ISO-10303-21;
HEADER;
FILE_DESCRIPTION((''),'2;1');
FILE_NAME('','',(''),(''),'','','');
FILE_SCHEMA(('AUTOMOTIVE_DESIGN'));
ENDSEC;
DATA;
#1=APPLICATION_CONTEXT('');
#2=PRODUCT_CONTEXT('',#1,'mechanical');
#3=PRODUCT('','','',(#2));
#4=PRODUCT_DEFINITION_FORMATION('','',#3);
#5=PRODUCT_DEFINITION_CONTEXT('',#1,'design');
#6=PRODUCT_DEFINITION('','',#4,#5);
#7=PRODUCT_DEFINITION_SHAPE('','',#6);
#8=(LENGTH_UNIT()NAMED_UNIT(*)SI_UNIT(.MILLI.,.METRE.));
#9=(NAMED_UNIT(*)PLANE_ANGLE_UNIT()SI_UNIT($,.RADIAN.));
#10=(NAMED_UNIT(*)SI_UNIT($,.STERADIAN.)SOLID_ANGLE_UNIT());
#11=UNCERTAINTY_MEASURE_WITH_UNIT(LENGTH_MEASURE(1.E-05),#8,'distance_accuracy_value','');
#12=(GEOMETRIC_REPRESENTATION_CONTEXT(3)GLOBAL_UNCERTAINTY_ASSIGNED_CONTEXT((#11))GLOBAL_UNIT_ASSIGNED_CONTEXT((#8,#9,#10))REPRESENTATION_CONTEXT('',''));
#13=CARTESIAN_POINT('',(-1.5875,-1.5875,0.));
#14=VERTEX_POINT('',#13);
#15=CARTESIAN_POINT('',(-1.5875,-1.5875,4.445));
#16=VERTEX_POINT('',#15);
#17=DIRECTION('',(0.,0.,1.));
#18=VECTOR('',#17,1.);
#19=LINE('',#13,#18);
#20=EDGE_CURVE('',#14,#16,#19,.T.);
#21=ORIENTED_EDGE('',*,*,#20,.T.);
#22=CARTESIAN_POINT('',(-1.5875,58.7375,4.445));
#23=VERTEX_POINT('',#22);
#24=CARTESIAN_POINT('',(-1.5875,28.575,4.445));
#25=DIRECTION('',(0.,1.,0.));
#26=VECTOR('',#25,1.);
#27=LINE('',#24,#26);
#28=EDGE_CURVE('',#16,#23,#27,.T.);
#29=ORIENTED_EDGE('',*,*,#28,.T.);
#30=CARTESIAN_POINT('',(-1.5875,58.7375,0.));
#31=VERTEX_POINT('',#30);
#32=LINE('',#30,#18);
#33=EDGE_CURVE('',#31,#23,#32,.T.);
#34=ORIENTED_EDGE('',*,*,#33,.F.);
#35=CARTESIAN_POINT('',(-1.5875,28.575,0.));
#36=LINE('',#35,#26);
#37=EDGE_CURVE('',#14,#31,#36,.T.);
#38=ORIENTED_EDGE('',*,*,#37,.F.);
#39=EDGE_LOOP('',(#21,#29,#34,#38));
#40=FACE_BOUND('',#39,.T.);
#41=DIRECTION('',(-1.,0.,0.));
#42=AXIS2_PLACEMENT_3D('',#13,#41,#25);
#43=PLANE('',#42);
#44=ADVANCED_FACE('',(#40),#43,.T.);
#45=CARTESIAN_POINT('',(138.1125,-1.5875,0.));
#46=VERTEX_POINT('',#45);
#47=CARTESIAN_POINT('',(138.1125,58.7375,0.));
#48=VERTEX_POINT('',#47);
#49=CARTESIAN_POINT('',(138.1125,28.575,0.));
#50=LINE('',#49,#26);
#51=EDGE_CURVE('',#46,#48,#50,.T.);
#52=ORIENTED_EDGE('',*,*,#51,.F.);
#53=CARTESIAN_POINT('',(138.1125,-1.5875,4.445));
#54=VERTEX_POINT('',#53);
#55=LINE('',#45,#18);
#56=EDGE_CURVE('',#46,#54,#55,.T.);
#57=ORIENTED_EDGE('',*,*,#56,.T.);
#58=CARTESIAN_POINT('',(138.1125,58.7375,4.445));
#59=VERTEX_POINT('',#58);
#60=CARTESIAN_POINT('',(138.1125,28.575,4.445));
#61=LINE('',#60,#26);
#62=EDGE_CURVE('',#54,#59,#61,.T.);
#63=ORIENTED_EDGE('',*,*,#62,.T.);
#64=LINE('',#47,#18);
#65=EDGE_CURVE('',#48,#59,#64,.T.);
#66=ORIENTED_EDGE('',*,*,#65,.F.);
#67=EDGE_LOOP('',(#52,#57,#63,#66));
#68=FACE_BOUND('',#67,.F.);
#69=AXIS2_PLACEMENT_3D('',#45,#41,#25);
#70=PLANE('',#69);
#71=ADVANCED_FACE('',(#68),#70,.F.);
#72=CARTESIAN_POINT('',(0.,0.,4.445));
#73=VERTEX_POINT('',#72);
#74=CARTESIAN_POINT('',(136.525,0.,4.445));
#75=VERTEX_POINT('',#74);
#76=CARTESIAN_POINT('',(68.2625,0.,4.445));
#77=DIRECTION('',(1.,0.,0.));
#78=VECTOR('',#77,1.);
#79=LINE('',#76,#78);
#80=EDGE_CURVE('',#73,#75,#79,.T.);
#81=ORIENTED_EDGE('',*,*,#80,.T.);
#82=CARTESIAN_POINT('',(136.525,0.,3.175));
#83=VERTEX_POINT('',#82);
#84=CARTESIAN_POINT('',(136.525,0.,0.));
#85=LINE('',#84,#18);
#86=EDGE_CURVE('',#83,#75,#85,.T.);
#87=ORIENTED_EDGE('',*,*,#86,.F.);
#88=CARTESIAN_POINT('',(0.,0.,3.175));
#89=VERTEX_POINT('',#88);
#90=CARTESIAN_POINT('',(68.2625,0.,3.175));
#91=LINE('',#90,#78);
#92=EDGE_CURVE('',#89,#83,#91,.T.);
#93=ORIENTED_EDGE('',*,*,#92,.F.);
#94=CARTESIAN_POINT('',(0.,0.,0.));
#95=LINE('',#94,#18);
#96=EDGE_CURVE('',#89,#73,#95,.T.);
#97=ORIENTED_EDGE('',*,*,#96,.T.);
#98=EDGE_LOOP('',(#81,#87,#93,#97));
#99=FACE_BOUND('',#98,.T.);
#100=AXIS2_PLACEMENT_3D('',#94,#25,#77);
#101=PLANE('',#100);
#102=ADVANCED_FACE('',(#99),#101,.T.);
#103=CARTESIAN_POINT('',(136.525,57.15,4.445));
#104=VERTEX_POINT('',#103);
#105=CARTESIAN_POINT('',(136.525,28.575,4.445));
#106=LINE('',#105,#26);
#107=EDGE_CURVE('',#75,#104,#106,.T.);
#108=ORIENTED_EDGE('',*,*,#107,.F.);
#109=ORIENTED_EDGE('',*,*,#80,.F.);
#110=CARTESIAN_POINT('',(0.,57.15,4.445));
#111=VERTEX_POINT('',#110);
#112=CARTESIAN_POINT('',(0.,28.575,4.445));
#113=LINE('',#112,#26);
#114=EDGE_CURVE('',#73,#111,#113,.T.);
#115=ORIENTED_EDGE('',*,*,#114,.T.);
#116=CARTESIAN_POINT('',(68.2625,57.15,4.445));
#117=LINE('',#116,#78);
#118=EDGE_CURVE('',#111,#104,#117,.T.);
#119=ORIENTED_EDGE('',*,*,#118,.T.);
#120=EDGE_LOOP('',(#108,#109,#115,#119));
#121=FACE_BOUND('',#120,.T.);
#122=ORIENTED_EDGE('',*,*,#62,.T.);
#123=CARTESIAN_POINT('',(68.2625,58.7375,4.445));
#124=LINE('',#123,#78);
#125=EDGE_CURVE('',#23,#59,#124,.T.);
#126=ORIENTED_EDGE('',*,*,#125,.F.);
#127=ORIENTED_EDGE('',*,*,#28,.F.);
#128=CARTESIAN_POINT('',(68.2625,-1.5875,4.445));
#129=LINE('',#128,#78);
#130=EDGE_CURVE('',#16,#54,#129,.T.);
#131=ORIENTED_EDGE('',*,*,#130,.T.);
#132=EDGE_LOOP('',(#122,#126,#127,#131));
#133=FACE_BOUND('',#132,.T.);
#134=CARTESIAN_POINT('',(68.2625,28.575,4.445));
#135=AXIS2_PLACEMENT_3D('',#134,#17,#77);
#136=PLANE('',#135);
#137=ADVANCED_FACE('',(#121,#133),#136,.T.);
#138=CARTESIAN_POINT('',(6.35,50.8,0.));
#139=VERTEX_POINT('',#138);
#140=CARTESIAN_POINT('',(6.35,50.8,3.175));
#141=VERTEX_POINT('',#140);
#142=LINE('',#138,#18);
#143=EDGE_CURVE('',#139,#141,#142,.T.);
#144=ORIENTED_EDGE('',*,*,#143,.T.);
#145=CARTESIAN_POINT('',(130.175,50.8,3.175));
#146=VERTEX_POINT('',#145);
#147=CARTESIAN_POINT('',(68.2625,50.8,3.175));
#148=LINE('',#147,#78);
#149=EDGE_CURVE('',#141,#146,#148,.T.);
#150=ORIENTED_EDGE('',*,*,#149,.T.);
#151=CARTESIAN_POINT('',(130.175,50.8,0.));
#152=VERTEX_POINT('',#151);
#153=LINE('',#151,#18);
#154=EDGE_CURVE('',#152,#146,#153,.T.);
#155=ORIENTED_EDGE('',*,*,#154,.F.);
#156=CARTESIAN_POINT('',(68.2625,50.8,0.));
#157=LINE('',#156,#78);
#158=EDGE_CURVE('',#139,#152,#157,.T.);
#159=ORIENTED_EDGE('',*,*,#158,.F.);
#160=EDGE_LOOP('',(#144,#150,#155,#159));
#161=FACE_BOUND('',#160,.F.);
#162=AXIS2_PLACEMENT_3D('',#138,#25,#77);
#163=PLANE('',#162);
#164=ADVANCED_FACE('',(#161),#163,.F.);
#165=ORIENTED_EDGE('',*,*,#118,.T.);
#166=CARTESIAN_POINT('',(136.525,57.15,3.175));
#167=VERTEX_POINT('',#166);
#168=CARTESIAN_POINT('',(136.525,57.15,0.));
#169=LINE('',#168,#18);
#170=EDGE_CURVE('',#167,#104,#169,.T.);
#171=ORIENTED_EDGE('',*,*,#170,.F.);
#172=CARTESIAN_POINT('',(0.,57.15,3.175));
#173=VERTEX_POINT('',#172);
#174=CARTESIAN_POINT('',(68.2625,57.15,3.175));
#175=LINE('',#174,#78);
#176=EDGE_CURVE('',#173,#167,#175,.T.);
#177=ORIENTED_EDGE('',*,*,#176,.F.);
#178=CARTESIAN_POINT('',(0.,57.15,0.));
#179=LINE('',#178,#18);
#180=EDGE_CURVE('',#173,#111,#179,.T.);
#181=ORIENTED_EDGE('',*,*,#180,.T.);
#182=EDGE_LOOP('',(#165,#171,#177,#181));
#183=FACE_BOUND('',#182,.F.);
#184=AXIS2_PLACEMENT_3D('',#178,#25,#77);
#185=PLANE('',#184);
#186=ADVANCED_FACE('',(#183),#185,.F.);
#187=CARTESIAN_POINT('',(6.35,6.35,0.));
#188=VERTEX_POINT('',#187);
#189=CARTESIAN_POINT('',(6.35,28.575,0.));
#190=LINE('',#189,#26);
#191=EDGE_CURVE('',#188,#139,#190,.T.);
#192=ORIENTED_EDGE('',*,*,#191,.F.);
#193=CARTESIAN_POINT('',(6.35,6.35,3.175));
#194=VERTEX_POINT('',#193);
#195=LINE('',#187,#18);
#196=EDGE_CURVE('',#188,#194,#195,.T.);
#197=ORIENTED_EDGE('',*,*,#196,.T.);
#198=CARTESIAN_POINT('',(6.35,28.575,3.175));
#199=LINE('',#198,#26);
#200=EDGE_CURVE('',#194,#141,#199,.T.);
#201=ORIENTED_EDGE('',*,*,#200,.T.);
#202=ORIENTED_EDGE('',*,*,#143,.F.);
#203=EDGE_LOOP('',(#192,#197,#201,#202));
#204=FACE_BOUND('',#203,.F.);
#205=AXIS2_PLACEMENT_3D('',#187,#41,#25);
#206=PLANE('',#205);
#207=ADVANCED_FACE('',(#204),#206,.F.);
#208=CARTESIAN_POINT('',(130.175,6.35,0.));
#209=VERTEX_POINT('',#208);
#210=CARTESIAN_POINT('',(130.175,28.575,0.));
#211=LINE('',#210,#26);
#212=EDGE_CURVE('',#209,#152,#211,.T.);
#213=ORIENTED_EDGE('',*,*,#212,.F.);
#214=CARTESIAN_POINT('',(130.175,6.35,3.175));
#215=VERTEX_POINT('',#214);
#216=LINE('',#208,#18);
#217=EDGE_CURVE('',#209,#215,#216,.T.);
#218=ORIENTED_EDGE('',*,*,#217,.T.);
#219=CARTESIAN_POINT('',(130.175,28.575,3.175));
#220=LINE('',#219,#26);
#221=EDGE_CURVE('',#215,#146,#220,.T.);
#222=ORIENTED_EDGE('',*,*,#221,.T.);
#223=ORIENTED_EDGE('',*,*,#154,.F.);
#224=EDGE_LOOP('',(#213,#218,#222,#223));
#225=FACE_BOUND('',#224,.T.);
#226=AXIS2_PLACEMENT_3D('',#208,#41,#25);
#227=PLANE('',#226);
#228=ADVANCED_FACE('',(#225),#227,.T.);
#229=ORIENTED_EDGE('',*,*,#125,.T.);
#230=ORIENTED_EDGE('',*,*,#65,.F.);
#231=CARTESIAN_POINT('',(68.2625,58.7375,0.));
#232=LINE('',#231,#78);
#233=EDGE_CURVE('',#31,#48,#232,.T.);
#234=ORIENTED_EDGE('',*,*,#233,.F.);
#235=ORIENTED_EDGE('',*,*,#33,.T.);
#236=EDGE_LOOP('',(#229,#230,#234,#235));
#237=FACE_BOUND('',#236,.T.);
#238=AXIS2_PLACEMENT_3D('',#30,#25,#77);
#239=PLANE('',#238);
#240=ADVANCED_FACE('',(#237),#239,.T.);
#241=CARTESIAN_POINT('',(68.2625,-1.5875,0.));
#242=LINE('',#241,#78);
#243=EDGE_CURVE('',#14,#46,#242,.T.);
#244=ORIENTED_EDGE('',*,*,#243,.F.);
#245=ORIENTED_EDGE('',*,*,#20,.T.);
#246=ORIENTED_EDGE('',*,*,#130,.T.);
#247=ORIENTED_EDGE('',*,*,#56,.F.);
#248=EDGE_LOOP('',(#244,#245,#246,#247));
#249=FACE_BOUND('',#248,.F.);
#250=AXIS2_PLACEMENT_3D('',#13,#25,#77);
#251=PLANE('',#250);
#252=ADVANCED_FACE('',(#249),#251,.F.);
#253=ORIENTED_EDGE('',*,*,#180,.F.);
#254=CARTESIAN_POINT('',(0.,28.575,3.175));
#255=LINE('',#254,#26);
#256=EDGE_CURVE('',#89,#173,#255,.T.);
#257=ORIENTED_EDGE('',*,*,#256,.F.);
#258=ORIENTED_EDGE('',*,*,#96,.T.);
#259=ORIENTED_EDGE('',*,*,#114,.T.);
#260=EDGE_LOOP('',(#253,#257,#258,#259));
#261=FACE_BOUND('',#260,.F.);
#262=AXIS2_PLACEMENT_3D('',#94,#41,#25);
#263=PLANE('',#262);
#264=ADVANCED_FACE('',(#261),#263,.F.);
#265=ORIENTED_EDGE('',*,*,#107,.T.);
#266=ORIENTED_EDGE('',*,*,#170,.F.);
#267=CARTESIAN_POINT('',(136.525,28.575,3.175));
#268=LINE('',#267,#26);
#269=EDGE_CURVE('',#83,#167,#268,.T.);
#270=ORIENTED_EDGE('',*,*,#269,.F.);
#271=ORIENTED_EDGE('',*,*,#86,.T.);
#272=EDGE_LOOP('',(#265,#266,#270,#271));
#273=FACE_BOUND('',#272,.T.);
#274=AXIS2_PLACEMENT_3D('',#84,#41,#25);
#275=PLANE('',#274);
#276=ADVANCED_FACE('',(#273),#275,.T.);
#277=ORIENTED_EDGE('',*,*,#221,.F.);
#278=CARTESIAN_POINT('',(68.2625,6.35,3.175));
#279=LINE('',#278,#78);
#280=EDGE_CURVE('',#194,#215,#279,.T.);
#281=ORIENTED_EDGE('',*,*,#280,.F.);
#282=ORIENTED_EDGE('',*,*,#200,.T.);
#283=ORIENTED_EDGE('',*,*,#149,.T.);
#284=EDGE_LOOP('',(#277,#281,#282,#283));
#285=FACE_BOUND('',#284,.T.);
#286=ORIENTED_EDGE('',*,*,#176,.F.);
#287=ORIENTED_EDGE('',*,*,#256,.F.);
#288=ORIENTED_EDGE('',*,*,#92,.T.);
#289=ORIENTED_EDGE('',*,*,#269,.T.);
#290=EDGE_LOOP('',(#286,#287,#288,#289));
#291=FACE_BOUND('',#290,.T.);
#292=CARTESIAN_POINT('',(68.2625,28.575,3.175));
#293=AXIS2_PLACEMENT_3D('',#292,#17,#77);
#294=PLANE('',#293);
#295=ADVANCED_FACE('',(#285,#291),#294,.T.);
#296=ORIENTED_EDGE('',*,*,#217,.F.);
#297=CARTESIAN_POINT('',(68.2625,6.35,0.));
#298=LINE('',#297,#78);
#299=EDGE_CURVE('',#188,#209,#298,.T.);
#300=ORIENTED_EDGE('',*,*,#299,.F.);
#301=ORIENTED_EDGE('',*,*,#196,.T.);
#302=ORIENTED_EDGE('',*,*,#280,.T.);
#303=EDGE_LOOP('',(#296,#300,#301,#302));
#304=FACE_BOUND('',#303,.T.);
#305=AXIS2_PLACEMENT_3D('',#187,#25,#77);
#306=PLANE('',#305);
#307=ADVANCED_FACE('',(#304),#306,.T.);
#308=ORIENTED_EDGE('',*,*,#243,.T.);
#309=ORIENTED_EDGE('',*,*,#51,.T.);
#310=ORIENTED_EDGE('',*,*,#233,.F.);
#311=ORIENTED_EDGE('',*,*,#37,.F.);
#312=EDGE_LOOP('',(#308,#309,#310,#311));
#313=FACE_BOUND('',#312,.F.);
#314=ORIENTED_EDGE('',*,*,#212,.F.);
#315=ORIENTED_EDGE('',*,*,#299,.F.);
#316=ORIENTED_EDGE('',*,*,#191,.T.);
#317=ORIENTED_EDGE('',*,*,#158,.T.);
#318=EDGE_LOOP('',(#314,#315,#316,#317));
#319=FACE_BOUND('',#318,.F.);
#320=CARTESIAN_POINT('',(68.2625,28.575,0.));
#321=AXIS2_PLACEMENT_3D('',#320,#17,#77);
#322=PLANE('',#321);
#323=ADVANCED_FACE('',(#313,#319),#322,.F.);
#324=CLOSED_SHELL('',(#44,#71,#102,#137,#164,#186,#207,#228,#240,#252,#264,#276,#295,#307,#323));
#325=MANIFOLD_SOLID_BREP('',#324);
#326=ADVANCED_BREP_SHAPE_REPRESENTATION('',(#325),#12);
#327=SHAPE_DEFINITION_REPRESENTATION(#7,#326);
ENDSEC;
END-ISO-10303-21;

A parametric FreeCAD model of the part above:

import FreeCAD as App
import Part
import Sketcher

V = App.Vector
Q = App.Units.Quantity


def add_polygon(sketch, points):
    """Adds a closed chain of lines whose ends are joined by coincident constraints."""
    first, n = sketch.GeometryCount, len(points)
    for a, b in zip(points, points[1:] + points[:1]):
        sketch.addGeometry(Part.LineSegment(App.Vector(*a, 0), App.Vector(*b, 0)), False)
    for i in range(n):
        sketch.addConstraint(Sketcher.Constraint("Coincident", first + i, 2, first + (i + 1) % n, 1))

doc = App.newDocument("Part")
params = doc.addObject("Spreadsheet::Sheet", "Params")
for row, (alias, value) in enumerate([
    ("sketch1_height", "2.25 in"),
    ("sketch1_width", "5.375 in"),
    ("sketch1_width2", "4.875 in"),
    ("pad1_length", "0.125 in"),
    ("sketch2_width", "5.5 in"),
    ("sketch2_height", "2.25 in"),
    ("sketch2_width2", "5.375 in"),
    ("sketch2_height2", "2.375 in"),
    ("pad2_length", "0.175 in"),
], start=1):
    params.set(f"A{row}", alias)
    params.set(f"B{row}", "=" + value)
    params.setAlias(f"B{row}", alias)

body = doc.addObject("PartDesign::Body", "Body")

sketch1 = body.newObject("Sketcher::SketchObject", "Sketch")
sketch1.AttachmentSupport = (doc.getObject("XY_Plane"), [""])
sketch1.MapMode = "FlatFace"
add_polygon(sketch1, [(0, 57), (0, 0), (137, 0), (137, 57)])
add_polygon(sketch1, [(130, 6), (6, 6), (6, 51), (130, 51)])
sketch1.addConstraint(Sketcher.Constraint("Vertical", 0))
sketch1.addConstraint(Sketcher.Constraint("Horizontal", 1))
sketch1.addConstraint(Sketcher.Constraint("Vertical", 2))
sketch1.addConstraint(Sketcher.Constraint("Horizontal", 3))
sketch1.addConstraint(Sketcher.Constraint("Horizontal", 4))
sketch1.addConstraint(Sketcher.Constraint("Vertical", 5))
sketch1.addConstraint(Sketcher.Constraint("Horizontal", 6))
sketch1.addConstraint(Sketcher.Constraint("Vertical", 7))
sketch1.addConstraint(Sketcher.Constraint("Coincident", 0, 2, -1, 1))
sketch1.addConstraint(Sketcher.Constraint("DistanceY", -1, 1, 5, 2, Q("2 in")))
sketch1.addConstraint(Sketcher.Constraint("DistanceY", 4, 2, 3, 2, Q("2 in")))
sketch1.addConstraint(Sketcher.Constraint("DistanceY", 0, 2, 0, 1, Q("2.25 in")))
sketch1.addConstraint(Sketcher.Constraint("DistanceX", 1, 1, 1, 2, Q("5.375 in")))
sketch1.addConstraint(Sketcher.Constraint("DistanceX", 4, 2, 4, 1, Q("4.875 in")))
sketch1.addConstraint(Sketcher.Constraint("DistanceX", -1, 1, 4, 2, Q("0.25 in")))
sketch1.setExpression("Constraints[19]", "Params.sketch1_height")
sketch1.setExpression("Constraints[20]", "Params.sketch1_width")
sketch1.setExpression("Constraints[21]", "Params.sketch1_width2")
pad1 = body.newObject("PartDesign::Pad", "Pad")
pad1.Profile = sketch1
pad1.setExpression("Length", "Params.pad1_length")

sketch2 = body.newObject("Sketcher::SketchObject", "Sketch001")
sketch2.AttachmentSupport = (doc.getObject("XY_Plane"), [""])
sketch2.MapMode = "FlatFace"
add_polygon(sketch2, [(-2, 59), (-2, -2), (138, -2), (138, 59)])
add_polygon(sketch2, [(137, 0), (0, 0), (0, 57), (137, 57)])
sketch2.addConstraint(Sketcher.Constraint("Vertical", 0))
sketch2.addConstraint(Sketcher.Constraint("Horizontal", 1))
sketch2.addConstraint(Sketcher.Constraint("Vertical", 2))
sketch2.addConstraint(Sketcher.Constraint("Horizontal", 3))
sketch2.addConstraint(Sketcher.Constraint("Horizontal", 4))
sketch2.addConstraint(Sketcher.Constraint("Vertical", 5))
sketch2.addConstraint(Sketcher.Constraint("Horizontal", 6))
sketch2.addConstraint(Sketcher.Constraint("Vertical", 7))
sketch2.addConstraint(Sketcher.Constraint("Coincident", 4, 2, -1, 1))
sketch2.addConstraint(Sketcher.Constraint("DistanceX", 1, 1, 1, 2, Q("5.5 in")))
sketch2.addConstraint(Sketcher.Constraint("DistanceY", 5, 1, 5, 2, Q("2.25 in")))
sketch2.addConstraint(Sketcher.Constraint("DistanceX", 4, 2, 4, 1, Q("5.375 in")))
sketch2.addConstraint(Sketcher.Constraint("DistanceY", 0, 2, 0, 1, Q("2.375 in")))
sketch2.addConstraint(Sketcher.Constraint("DistanceX", 0, 2, -1, 1, Q("0.0625 in")))
sketch2.addConstraint(Sketcher.Constraint("DistanceY", 0, 2, -1, 1, Q("0.0625 in")))
sketch2.setExpression("Constraints[17]", "Params.sketch2_width")
sketch2.setExpression("Constraints[18]", "Params.sketch2_height")
sketch2.setExpression("Constraints[19]", "Params.sketch2_width2")
sketch2.setExpression("Constraints[20]", "Params.sketch2_height2")
pad2 = body.newObject("PartDesign::Pad", "Pad001")
pad2.Profile = sketch2
pad2.setExpression("Length", "Params.pad2_length")

doc.recompute()
